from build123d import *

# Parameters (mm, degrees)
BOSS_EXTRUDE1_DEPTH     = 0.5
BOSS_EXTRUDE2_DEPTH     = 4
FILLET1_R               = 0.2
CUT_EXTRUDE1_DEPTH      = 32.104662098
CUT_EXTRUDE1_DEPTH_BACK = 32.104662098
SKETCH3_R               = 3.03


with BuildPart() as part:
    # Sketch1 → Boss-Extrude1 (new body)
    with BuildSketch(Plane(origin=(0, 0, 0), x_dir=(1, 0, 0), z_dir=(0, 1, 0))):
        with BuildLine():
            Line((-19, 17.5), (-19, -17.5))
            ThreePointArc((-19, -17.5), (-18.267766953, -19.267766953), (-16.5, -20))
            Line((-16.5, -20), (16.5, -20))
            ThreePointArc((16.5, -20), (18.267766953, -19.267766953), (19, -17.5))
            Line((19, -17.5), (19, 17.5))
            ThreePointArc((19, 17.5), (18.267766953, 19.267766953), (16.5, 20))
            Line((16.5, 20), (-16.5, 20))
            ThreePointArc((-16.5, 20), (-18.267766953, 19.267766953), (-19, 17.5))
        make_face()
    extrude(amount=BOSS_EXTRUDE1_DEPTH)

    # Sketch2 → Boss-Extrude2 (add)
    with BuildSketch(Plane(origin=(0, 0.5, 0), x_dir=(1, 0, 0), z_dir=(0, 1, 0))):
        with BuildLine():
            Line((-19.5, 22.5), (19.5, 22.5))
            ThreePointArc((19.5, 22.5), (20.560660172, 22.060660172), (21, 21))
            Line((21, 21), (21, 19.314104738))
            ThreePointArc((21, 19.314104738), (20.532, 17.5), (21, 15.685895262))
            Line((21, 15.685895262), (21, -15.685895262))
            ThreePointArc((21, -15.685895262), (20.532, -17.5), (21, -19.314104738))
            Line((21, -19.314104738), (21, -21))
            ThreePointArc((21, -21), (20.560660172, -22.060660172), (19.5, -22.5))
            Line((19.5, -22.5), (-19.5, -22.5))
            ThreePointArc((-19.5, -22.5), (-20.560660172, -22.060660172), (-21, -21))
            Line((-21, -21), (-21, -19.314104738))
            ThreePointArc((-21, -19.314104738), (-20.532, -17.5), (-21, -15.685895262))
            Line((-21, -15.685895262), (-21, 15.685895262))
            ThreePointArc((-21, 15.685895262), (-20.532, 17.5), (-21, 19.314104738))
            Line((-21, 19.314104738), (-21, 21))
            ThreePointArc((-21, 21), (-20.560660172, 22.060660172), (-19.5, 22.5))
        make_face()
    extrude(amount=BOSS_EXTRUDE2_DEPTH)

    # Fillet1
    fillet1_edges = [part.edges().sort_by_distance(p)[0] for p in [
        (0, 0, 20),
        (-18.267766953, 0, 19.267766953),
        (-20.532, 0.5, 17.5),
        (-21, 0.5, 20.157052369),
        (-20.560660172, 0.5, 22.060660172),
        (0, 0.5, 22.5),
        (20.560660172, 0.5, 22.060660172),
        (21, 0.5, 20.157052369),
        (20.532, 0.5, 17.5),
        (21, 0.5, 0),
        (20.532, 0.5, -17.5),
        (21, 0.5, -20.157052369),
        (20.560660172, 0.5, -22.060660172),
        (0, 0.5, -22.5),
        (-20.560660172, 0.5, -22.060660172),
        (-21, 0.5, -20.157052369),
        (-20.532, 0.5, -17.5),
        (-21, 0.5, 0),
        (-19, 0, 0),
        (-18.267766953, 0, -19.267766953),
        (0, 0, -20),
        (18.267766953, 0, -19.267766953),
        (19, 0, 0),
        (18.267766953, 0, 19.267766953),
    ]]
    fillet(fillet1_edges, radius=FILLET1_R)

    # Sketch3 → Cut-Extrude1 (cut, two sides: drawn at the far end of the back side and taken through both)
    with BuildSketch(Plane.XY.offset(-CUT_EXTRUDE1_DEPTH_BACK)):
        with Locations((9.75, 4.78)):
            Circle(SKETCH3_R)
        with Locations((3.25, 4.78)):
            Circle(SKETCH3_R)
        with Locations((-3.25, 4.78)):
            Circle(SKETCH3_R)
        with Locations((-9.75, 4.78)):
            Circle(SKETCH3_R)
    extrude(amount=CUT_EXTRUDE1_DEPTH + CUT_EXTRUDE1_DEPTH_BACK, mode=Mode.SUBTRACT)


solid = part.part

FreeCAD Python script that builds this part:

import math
import FreeCAD as App
import Part
import Sketcher

V = App.Vector
Q = App.Units.Quantity


def edges_at(feature, points):
    """Names of the edges that pass closest to the given points."""
    edges = feature.Shape.Edges
    near = lambda p: min(range(len(edges)), key=lambda i: edges[i].distToShape(Part.Vertex(*p))[0])
    return sorted({f"Edge{near(p) + 1}" for p in points})

doc = App.newDocument("Part")
body = doc.addObject("PartDesign::Body", "Body")

sketch1 = body.newObject("Sketcher::SketchObject", "Sketch")
sketch1.AttachmentSupport = (doc.getObject("XZ_Plane"), [""])
sketch1.MapMode = "FlatFace"
sketch1.addGeometry([
    Part.LineSegment(V(-19, -17.5, 0), V(-19, 17.5, 0)),
    Part.ArcOfCircle(Part.Circle(V(-16.5, 17.5, 0), V(0, 0, 1), 2.5), math.radians(90), math.radians(180)),
    Part.LineSegment(V(-16.5, 20, 0), V(16.5, 20, 0)),
    Part.ArcOfCircle(Part.Circle(V(16.5, 17.5, 0), V(0, 0, 1), 2.5), math.radians(0), math.radians(90)),
    Part.LineSegment(V(19, 17.5, 0), V(19, -17.5, 0)),
    Part.ArcOfCircle(Part.Circle(V(16.5, -17.5, 0), V(0, 0, 1), 2.5), math.radians(-90), math.radians(0)),
    Part.LineSegment(V(16.5, -20, 0), V(-16.5, -20, 0)),
    Part.ArcOfCircle(Part.Circle(V(-16.5, -17.5, 0), V(0, 0, 1), 2.5), math.radians(180), math.radians(270)),
], False)
sketch1.addConstraint([
    Sketcher.Constraint("Tangent", 0, 2, 1, 2),
    Sketcher.Constraint("Tangent", 1, 1, 2, 1),
    Sketcher.Constraint("Tangent", 2, 2, 3, 2),
    Sketcher.Constraint("Tangent", 3, 1, 4, 1),
    Sketcher.Constraint("Tangent", 4, 2, 5, 2),
    Sketcher.Constraint("Tangent", 5, 1, 6, 1),
    Sketcher.Constraint("Tangent", 6, 2, 7, 2),
    Sketcher.Constraint("Tangent", 7, 1, 0, 1),
    Sketcher.Constraint("Vertical", 0),
    Sketcher.Constraint("Horizontal", 2),
    Sketcher.Constraint("Vertical", 4),
    Sketcher.Constraint("Horizontal", 6),
    Sketcher.Constraint("Equal", 1, 3),
    Sketcher.Constraint("Equal", 3, 5),
    Sketcher.Constraint("Equal", 5, 7),
    Sketcher.Constraint("Symmetric", 1, 3, 5, 3, -1, 1),
    Sketcher.Constraint("Radius", 1, Q("2.5 mm")),
    Sketcher.Constraint("DistanceX", 2, 1, 2, 2, Q("33 mm")),
    Sketcher.Constraint("DistanceY", 0, 1, 0, 2, Q("35 mm")),
])
pad1 = body.newObject("PartDesign::Pad", "Pad")
pad1.Profile = sketch1
pad1.Length = 0.5
pad1.Reversed = True

sketch2 = body.newObject("Sketcher::SketchObject", "Sketch001")
sketch2.AttachmentSupport = (doc.getObject("XZ_Plane"), [""])
sketch2.MapMode = "FlatFace"
sketch2.AttachmentOffset = App.Placement(V(0, 0, -0.5), App.Rotation())
sketch2.addGeometry([
    Part.LineSegment(V(19.5, -22.5, 0), V(-19.5, -22.5, 0)),
    Part.ArcOfCircle(Part.Circle(V(-19.5, -21, 0), V(0, 0, 1), 1.5), math.radians(180), math.radians(270)),
    Part.LineSegment(V(-21, -21, 0), V(-21, -19.3, 0)),
    Part.ArcOfCircle(Part.Circle(V(-24.3, -17.5, 0), V(0, 0, 1), 3.8), math.radians(-29), math.radians(29)),
    Part.LineSegment(V(-21, -15.7, 0), V(-21, 15.7, 0)),
    Part.ArcOfCircle(Part.Circle(V(-24.3, 17.5, 0), V(0, 0, 1), 3.8), math.radians(-29), math.radians(29)),
    Part.LineSegment(V(-21, 19.3, 0), V(-21, 21, 0)),
    Part.ArcOfCircle(Part.Circle(V(-19.5, 21, 0), V(0, 0, 1), 1.5), math.radians(90), math.radians(180)),
    Part.LineSegment(V(-19.5, 22.5, 0), V(19.5, 22.5, 0)),
    Part.ArcOfCircle(Part.Circle(V(19.5, 21, 0), V(0, 0, 1), 1.5), math.radians(0), math.radians(90)),
    Part.LineSegment(V(21, 21, 0), V(21, 19.3, 0)),
    Part.ArcOfCircle(Part.Circle(V(24.3, 17.5, 0), V(0, 0, 1), 3.8), math.radians(151), math.radians(209)),
    Part.LineSegment(V(21, 15.7, 0), V(21, -15.7, 0)),
    Part.ArcOfCircle(Part.Circle(V(24.3, -17.5, 0), V(0, 0, 1), 3.8), math.radians(151), math.radians(209)),
    Part.LineSegment(V(21, -19.3, 0), V(21, -21, 0)),
    Part.ArcOfCircle(Part.Circle(V(19.5, -21, 0), V(0, 0, 1), 1.5), math.radians(-90), math.radians(0)),
], False)
sketch2.addConstraint([
    Sketcher.Constraint("Tangent", 0, 2, 1, 2),
    Sketcher.Constraint("Tangent", 1, 1, 2, 1),
    Sketcher.Constraint("Coincident", 2, 2, 3, 1),
    Sketcher.Constraint("Coincident", 3, 2, 4, 1),
    Sketcher.Constraint("Coincident", 4, 2, 5, 1),
    Sketcher.Constraint("Coincident", 5, 2, 6, 1),
    Sketcher.Constraint("Tangent", 6, 2, 7, 2),
    Sketcher.Constraint("Tangent", 7, 1, 8, 1),
    Sketcher.Constraint("Tangent", 8, 2, 9, 2),
    Sketcher.Constraint("Tangent", 9, 1, 10, 1),
    Sketcher.Constraint("Coincident", 10, 2, 11, 1),
    Sketcher.Constraint("Coincident", 11, 2, 12, 1),
    Sketcher.Constraint("Coincident", 12, 2, 13, 1),
    Sketcher.Constraint("Coincident", 13, 2, 14, 1),
    Sketcher.Constraint("Tangent", 14, 2, 15, 2),
    Sketcher.Constraint("Tangent", 15, 1, 0, 1),
    Sketcher.Constraint("Horizontal", 0),
    Sketcher.Constraint("Vertical", 2),
    Sketcher.Constraint("Vertical", 4),
    Sketcher.Constraint("Vertical", 6),
    Sketcher.Constraint("Horizontal", 8),
    Sketcher.Constraint("Vertical", 10),
    Sketcher.Constraint("Vertical", 12),
    Sketcher.Constraint("Vertical", 14),
    Sketcher.Constraint("Equal", 3, 5),
    Sketcher.Constraint("Equal", 1, 7),
    Sketcher.Constraint("Equal", 7, 9),
    Sketcher.Constraint("Equal", 5, 11),
    Sketcher.Constraint("Equal", 11, 13),
    Sketcher.Constraint("Equal", 9, 15),
    Sketcher.Constraint("Symmetric", 1, 3, 9, 3, -1, 1),
    Sketcher.Constraint("Symmetric", 3, 3, 11, 3, -1, 1),
    Sketcher.Constraint("Symmetric", 5, 3, 13, 3, -1, 1),
    Sketcher.Constraint("Symmetric", 5, 3, 11, 3, -2),
    Sketcher.Constraint("Horizontal", 5, 2, 10, 2),
    Sketcher.Constraint("Horizontal", 4, 2, 11, 2),
    Sketcher.Constraint("Horizontal", 2, 2, 13, 2),
    Sketcher.Constraint("Vertical", 2, 2, 3, 2),
    Sketcher.Constraint("Radius", 1, Q("1.5 mm")),
    Sketcher.Constraint("DistanceX", 0, 2, 0, 1, Q("39 mm")),
    Sketcher.Constraint("Radius", 3, Q("3.75 mm")),
    Sketcher.Constraint("DistanceY", 1, 3, -1, 1, Q("21 mm")),
    Sketcher.Constraint("DistanceY", 3, 3, 5, 3, Q("35 mm")),
    Sketcher.Constraint("DistanceX", 3, 3, -1, 1, Q("24.282 mm")),
])
pad2 = body.newObject("PartDesign::Pad", "Pad001")
pad2.Profile = sketch2
pad2.Length = 4
pad2.Reversed = True
doc.recompute()

fillet = body.newObject("PartDesign::Fillet", "Fillet")
fillet.Base = (pad2, edges_at(pad2, [
    (0, 0, 20),
    (-18.268, 0, 19.268),
    (-20.532, 0.5, 17.5),
    (-21, 0.5, 20.157),
    (-20.561, 0.5, 22.061),
    (0, 0.5, 22.5),
    (20.561, 0.5, 22.061),
    (21, 0.5, 20.157),
    (20.532, 0.5, 17.5),
    (21, 0.5, 0),
    (20.532, 0.5, -17.5),
    (21, 0.5, -20.157),
    (20.561, 0.5, -22.061),
    (0, 0.5, -22.5),
    (-20.561, 0.5, -22.061),
    (-21, 0.5, -20.157),
    (-20.532, 0.5, -17.5),
    (-21, 0.5, 0),
    (-19, 0, 0),
    (-18.268, 0, -19.268),
    (0, 0, -20),
    (18.268, 0, -19.268),
    (19, 0, 0),
    (18.268, 0, 19.268),
]))
fillet.Radius = 0.2

sketch3 = body.newObject("Sketcher::SketchObject", "Sketch002")
sketch3.AttachmentSupport = (doc.getObject("XY_Plane"), [""])
sketch3.MapMode = "FlatFace"
sketch3.addGeometry([
    Part.Circle(V(9.8, 4.8, 0), V(0, 0, 1), 3),
    Part.Circle(V(3.2, 4.8, 0), V(0, 0, 1), 3),
    Part.Circle(V(-3.2, 4.8, 0), V(0, 0, 1), 3),
    Part.Circle(V(-9.8, 4.8, 0), V(0, 0, 1), 3),
], False)
sketch3.addConstraint([
    Sketcher.Constraint("Equal", 0, 1),
    Sketcher.Constraint("Equal", 1, 2),
    Sketcher.Constraint("Equal", 2, 3),
    Sketcher.Constraint("Symmetric", 1, 3, 2, 3, -2),
    Sketcher.Constraint("Symmetric", 0, 3, 3, 3, -2),
    Sketcher.Constraint("Horizontal", 0, 3, 1, 3),
    Sketcher.Constraint("Diameter", 0, Q("6.06 mm")),
    Sketcher.Constraint("DistanceX", 2, 3, 0, 3, Q("13 mm")),
    Sketcher.Constraint("DistanceX", 1, 3, 0, 3, Q("6.5 mm")),
    Sketcher.Constraint("DistanceY", -1, 1, 0, 3, Q("4.78 mm")),
])
pocket1 = body.newObject("PartDesign::Pocket", "Pocket")
pocket1.Profile = sketch3
pocket1.Type = "ThroughAll"
pocket1.Midplane = True

doc.recompute()
